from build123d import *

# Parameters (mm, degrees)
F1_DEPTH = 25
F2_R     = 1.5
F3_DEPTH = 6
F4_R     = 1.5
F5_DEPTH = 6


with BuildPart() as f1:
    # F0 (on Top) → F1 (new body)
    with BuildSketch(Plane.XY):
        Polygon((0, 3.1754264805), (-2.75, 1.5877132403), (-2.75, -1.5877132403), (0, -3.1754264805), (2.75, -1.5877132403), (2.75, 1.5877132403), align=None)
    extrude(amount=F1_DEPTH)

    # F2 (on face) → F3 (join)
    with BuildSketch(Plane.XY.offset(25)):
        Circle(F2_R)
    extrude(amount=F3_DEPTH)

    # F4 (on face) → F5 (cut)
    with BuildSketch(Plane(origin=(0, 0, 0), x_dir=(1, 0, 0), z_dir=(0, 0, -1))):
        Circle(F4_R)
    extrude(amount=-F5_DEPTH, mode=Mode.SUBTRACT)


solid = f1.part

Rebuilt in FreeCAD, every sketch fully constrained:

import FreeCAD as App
import Part
import Sketcher
Q = App.Units.Quantity

doc = App.newDocument("Part")
body = doc.addObject("PartDesign::Body", "Body")

# Sketch on XY plane
sketch1 = body.newObject("Sketcher::SketchObject", "Sketch")
sketch1.AttachmentSupport = (doc.getObject("XY_Plane"), [""])
sketch1.MapMode = "FlatFace"
sketch1.addGeometry(Part.LineSegment(App.Vector(0, 3.175426, 0), App.Vector(-2.75, 1.587713, 0)), False)
sketch1.addGeometry(Part.LineSegment(App.Vector(-2.75, 1.587713, 0), App.Vector(-2.75, -1.587713, 0)), False)
sketch1.addGeometry(Part.LineSegment(App.Vector(-2.75, -1.587713, 0), App.Vector(0, -3.175426, 0)), False)
sketch1.addGeometry(Part.LineSegment(App.Vector(0, -3.175426, 0), App.Vector(2.75, -1.587713, 0)), False)
sketch1.addGeometry(Part.LineSegment(App.Vector(2.75, -1.587713, 0), App.Vector(2.75, 1.587713, 0)), False)
sketch1.addGeometry(Part.LineSegment(App.Vector(2.75, 1.587713, 0), App.Vector(0, 3.175426, 0)), False)
sketch1.addConstraint(Sketcher.Constraint("Coincident", 0, 2, 1, 1))
sketch1.addConstraint(Sketcher.Constraint("Coincident", 1, 2, 2, 1))
sketch1.addConstraint(Sketcher.Constraint("Coincident", 2, 2, 3, 1))
sketch1.addConstraint(Sketcher.Constraint("Coincident", 3, 2, 4, 1))
sketch1.addConstraint(Sketcher.Constraint("Coincident", 4, 2, 5, 1))
sketch1.addConstraint(Sketcher.Constraint("Coincident", 5, 2, 0, 1))
sketch1.addConstraint(Sketcher.Constraint("Vertical", 1))
sketch1.addConstraint(Sketcher.Constraint("Vertical", 4))
sketch1.addConstraint(Sketcher.Constraint("Symmetric", 0, 2, 3, 2, -1, 1))
sketch1.addConstraint(Sketcher.Constraint("Symmetric", 2, 2, 5, 2, -1, 1))
sketch1.addConstraint(Sketcher.Constraint("PointOnObject", 2, 2, -2))
sketch1.addConstraint(Sketcher.Constraint("Parallel", 2, 5))
sketch1.addConstraint(Sketcher.Constraint("Horizontal", 1, 2, 3, 2))
sketch1.addConstraint(Sketcher.Constraint("Angle", 0, Q("-150 deg")))
sketch1.addConstraint(Sketcher.Constraint("DistanceX", 1, 2, 3, 2, Q("5.5 mm")))
sketch1.addConstraint(Sketcher.Constraint("DistanceY", 1, 2, 1, 1, Q("3.175426 mm")))
pad1 = body.newObject("PartDesign::Pad", "Pad")
pad1.Profile = sketch1
pad1.Length = 25

# Sketch on XY plane
sketch2 = body.newObject("Sketcher::SketchObject", "Sketch001")
sketch2.AttachmentSupport = (doc.getObject("XY_Plane"), [""])
sketch2.MapMode = "FlatFace"
sketch2.AttachmentOffset = App.Placement(App.Vector(0, 0, 25), App.Rotation())
sketch2.addGeometry(Part.Circle(App.Vector(0, 0, 0), App.Vector(0, 0, 1), 1.5), False)
sketch2.addConstraint(Sketcher.Constraint("Coincident", 0, 3, -1, 1))
sketch2.addConstraint(Sketcher.Constraint("Diameter", 0, Q("3 mm")))
pad2 = body.newObject("PartDesign::Pad", "Pad001")
pad2.Profile = sketch2
pad2.Length = 6

# Sketch on XY plane
sketch3 = body.newObject("Sketcher::SketchObject", "Sketch002")
sketch3.AttachmentSupport = (doc.getObject("XY_Plane"), [""])
sketch3.MapMode = "FlatFace"
sketch3.addGeometry(Part.Circle(App.Vector(0, 0, 0), App.Vector(0, 0, 1), 1.5), False)
sketch3.addConstraint(Sketcher.Constraint("Coincident", 0, 3, -1, 1))
sketch3.addConstraint(Sketcher.Constraint("Diameter", 0, Q("3 mm")))
pocket1 = body.newObject("PartDesign::Pocket", "Pocket")
pocket1.Profile = sketch3
pocket1.Length = 6
pocket1.Reversed = True

doc.recompute()
